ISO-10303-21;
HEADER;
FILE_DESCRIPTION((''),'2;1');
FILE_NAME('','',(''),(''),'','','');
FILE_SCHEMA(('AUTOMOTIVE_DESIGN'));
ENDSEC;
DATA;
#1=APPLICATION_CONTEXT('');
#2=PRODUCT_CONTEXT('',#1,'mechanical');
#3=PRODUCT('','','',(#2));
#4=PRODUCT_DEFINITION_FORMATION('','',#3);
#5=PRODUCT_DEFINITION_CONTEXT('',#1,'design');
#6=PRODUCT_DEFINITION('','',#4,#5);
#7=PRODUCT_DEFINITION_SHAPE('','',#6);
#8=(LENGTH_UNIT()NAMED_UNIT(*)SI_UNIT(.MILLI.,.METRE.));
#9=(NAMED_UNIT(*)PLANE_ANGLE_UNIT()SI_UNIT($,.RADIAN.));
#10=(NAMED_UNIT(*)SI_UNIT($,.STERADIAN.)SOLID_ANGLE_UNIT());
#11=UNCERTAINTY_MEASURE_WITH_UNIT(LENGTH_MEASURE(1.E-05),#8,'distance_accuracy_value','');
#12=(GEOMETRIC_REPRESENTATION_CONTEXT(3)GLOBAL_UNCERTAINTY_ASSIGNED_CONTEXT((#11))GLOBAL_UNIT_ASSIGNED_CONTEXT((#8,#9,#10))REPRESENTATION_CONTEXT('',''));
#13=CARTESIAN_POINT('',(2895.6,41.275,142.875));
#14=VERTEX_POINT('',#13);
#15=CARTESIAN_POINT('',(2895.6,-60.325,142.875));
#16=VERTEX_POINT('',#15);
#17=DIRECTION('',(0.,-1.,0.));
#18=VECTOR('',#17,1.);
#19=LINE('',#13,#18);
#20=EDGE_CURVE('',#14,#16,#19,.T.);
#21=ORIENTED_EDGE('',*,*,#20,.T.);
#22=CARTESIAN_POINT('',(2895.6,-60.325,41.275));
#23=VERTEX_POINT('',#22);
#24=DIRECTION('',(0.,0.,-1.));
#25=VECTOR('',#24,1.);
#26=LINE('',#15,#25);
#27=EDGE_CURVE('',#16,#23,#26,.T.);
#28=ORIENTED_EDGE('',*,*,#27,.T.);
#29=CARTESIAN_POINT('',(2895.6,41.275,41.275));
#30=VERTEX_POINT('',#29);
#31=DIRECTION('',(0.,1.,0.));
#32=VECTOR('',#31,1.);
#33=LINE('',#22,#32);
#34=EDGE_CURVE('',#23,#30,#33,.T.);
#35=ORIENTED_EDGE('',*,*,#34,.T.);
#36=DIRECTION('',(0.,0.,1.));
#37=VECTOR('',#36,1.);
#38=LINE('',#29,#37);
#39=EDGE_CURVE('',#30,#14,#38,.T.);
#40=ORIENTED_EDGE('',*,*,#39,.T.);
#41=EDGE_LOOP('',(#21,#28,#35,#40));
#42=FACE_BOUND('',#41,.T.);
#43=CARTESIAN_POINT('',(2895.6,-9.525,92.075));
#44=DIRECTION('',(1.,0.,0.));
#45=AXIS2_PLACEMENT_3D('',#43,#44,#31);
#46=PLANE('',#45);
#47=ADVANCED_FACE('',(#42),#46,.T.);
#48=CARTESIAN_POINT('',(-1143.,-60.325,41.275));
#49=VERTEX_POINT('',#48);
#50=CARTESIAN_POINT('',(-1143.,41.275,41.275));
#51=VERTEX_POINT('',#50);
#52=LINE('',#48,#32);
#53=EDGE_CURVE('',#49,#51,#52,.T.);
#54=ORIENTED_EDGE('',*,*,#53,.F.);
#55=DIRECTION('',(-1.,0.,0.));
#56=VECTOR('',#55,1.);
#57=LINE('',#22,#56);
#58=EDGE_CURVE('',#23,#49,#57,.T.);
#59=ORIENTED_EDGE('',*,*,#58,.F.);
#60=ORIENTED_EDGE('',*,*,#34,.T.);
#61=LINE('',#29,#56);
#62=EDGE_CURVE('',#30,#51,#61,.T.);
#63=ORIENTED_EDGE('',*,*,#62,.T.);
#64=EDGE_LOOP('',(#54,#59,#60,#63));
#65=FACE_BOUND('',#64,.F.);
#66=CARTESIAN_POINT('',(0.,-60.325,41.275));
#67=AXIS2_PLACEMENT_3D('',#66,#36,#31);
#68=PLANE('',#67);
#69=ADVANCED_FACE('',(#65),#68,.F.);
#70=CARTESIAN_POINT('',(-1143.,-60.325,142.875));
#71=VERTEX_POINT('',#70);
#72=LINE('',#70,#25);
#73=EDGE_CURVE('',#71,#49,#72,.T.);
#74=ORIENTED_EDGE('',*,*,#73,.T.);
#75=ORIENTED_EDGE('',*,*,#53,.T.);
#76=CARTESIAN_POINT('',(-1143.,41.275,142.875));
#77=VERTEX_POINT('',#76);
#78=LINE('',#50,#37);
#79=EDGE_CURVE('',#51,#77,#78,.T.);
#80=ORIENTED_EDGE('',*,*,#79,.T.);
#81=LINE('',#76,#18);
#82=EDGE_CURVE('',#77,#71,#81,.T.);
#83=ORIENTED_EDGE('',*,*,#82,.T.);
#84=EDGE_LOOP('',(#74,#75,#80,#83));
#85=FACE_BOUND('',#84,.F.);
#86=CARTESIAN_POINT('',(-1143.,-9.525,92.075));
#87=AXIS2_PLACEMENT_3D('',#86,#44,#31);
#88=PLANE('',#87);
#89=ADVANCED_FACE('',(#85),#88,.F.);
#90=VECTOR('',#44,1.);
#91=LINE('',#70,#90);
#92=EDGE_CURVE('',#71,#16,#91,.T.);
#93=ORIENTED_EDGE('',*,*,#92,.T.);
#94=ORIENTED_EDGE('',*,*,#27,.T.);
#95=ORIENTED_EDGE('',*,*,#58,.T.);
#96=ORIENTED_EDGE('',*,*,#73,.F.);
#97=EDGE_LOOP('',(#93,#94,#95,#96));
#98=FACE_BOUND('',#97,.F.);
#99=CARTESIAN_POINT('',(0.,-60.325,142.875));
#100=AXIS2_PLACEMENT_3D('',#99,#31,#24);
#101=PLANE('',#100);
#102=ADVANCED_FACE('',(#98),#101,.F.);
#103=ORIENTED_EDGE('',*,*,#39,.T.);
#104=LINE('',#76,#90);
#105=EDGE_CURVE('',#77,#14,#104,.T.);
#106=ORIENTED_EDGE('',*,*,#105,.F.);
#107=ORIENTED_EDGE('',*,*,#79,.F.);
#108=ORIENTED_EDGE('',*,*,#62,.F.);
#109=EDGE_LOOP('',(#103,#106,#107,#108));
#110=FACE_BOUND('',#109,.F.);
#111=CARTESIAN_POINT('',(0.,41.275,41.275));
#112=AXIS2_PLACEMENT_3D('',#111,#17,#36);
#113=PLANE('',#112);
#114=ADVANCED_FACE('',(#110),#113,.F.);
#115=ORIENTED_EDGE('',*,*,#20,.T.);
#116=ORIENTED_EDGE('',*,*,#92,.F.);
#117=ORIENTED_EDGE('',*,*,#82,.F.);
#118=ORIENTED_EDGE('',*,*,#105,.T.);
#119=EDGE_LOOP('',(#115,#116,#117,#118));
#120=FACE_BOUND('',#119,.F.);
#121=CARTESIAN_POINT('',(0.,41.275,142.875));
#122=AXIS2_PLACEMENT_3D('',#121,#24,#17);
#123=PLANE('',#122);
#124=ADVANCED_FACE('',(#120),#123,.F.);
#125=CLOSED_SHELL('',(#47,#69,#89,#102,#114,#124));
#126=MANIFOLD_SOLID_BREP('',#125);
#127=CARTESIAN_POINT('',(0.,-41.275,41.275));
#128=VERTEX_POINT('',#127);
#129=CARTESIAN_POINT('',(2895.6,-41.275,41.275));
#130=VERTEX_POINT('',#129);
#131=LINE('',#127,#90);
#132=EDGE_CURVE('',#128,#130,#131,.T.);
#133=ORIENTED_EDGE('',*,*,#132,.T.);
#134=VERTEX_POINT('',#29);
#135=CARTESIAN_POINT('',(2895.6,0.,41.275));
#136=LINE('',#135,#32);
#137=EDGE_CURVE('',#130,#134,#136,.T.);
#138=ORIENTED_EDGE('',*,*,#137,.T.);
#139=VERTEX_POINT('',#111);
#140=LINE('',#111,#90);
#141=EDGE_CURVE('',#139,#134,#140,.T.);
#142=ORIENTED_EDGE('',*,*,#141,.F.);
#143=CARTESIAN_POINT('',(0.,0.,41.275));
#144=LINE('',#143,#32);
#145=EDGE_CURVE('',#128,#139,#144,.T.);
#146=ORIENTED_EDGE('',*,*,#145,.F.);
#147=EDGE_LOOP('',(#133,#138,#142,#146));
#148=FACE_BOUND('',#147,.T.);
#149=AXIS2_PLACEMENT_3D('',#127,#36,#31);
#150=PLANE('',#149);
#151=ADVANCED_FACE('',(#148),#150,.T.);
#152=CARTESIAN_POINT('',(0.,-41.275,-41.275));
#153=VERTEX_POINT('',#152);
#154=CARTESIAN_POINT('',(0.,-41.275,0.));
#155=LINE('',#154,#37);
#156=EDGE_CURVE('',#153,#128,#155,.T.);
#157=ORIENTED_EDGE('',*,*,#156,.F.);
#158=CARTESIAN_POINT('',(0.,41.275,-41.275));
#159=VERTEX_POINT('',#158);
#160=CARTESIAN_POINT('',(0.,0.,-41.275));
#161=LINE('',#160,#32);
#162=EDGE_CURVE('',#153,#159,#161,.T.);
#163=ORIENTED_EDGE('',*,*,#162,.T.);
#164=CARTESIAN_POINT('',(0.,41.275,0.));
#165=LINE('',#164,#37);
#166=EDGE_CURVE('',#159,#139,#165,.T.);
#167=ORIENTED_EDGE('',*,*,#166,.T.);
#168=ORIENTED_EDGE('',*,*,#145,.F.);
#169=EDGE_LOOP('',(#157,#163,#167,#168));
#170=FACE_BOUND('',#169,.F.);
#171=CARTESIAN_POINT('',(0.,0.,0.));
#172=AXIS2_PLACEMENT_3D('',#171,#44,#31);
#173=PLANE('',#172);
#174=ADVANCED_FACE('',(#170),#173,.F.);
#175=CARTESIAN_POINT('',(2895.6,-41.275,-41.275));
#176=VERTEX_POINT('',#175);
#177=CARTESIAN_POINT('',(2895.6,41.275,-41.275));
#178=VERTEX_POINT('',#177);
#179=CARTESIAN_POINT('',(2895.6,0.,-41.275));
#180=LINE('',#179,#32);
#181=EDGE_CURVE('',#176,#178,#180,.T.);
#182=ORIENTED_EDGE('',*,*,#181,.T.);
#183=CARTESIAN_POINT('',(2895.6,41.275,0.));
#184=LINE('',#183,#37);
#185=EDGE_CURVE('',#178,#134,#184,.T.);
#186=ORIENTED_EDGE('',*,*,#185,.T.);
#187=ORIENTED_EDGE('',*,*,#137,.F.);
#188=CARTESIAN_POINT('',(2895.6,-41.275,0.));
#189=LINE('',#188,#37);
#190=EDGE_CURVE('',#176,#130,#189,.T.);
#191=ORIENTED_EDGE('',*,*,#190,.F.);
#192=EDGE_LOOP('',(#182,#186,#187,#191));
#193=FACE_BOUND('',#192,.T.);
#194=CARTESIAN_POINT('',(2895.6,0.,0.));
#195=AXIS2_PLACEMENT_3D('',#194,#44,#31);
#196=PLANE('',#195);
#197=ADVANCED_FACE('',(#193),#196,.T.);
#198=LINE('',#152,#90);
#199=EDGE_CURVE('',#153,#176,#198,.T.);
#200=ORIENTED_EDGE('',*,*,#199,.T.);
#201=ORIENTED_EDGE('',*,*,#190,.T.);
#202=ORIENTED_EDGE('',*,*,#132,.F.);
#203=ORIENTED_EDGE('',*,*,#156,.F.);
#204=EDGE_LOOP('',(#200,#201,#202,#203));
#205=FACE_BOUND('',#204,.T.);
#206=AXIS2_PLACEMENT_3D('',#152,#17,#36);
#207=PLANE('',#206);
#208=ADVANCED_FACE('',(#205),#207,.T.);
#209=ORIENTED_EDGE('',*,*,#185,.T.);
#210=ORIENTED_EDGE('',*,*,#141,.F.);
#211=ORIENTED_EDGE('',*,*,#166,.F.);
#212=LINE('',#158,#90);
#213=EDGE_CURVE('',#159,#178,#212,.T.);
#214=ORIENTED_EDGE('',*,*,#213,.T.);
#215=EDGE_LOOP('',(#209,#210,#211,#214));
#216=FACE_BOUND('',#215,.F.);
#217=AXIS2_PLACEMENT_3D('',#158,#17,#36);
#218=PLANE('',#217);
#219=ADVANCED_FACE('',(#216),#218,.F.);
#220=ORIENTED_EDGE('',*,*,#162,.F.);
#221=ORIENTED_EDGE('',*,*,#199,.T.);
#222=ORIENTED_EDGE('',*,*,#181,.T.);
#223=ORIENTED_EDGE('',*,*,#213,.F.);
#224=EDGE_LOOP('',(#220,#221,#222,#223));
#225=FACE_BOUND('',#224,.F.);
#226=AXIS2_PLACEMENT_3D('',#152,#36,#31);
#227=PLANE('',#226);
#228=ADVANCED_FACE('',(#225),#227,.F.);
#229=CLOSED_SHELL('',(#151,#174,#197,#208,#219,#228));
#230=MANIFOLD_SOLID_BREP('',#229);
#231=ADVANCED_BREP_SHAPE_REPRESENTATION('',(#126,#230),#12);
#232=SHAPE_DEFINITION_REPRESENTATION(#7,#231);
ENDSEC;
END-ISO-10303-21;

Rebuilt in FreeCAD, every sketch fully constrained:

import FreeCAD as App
import Part
import Sketcher

V = App.Vector
Q = App.Units.Quantity

doc = App.newDocument("Part")
body = doc.addObject("PartDesign::Body", "Body")

# Sketch on YZ plane
sketch1 = body.newObject("Sketcher::SketchObject", "Sketch")
sketch1.AttachmentSupport = (doc.getObject("YZ_Plane"), [""])
sketch1.MapMode = "FlatFace"
sketch1.addGeometry(Part.LineSegment(V(-41, 41, 0), V(-41, -41, 0)), False)
sketch1.addGeometry(Part.LineSegment(V(-41, -41, 0), V(41, -41, 0)), False)
sketch1.addGeometry(Part.LineSegment(V(41, -41, 0), V(41, 41, 0)), False)
sketch1.addGeometry(Part.LineSegment(V(41, 41, 0), V(-41, 41, 0)), False)
sketch1.addConstraint(Sketcher.Constraint("Coincident", 0, 2, 1, 1))
sketch1.addConstraint(Sketcher.Constraint("Coincident", 1, 2, 2, 1))
sketch1.addConstraint(Sketcher.Constraint("Coincident", 2, 2, 3, 1))
sketch1.addConstraint(Sketcher.Constraint("Coincident", 3, 2, 0, 1))
sketch1.addConstraint(Sketcher.Constraint("Vertical", 0))
sketch1.addConstraint(Sketcher.Constraint("Horizontal", 1))
sketch1.addConstraint(Sketcher.Constraint("Vertical", 2))
sketch1.addConstraint(Sketcher.Constraint("Horizontal", 3))
sketch1.addConstraint(Sketcher.Constraint("Symmetric", 0, 2, 2, 2, -1, 1))
sketch1.addConstraint(Sketcher.Constraint("Equal", 3, 0))
sketch1.addConstraint(Sketcher.Constraint("DistanceX", 1, 1, 1, 2, Q("3.25 in")))
pad1 = body.newObject("PartDesign::Pad", "Pad")
pad1.Profile = sketch1
pad1.Length = Q("114 in")
body2 = doc.addObject("PartDesign::Body", "Body001")

# Sketch on YZ plane
sketch2 = body2.newObject("Sketcher::SketchObject", "Sketch001")
sketch2.AttachmentSupport = (doc.getObject("YZ_Plane001"), [""])
sketch2.MapMode = "FlatFace"
sketch2.addGeometry(Part.LineSegment(V(41, 41, 0), V(41, 143, 0)), False)
sketch2.addGeometry(Part.LineSegment(V(41, 143, 0), V(-60, 143, 0)), False)
sketch2.addGeometry(Part.LineSegment(V(-60, 143, 0), V(-60, 41, 0)), False)
sketch2.addGeometry(Part.LineSegment(V(-60, 41, 0), V(41, 41, 0)), False)
sketch2.addConstraint(Sketcher.Constraint("Coincident", 0, 2, 1, 1))
sketch2.addConstraint(Sketcher.Constraint("Coincident", 1, 2, 2, 1))
sketch2.addConstraint(Sketcher.Constraint("Coincident", 2, 2, 3, 1))
sketch2.addConstraint(Sketcher.Constraint("Coincident", 3, 2, 0, 1))
sketch2.addConstraint(Sketcher.Constraint("Vertical", 0))
sketch2.addConstraint(Sketcher.Constraint("Horizontal", 1))
sketch2.addConstraint(Sketcher.Constraint("Vertical", 2))
sketch2.addConstraint(Sketcher.Constraint("Horizontal", 3))
sketch2.addConstraint(Sketcher.Constraint("Equal", 3, 0))
sketch2.addConstraint(Sketcher.Constraint("DistanceX", 1, 2, 1, 1, Q("4 in")))
sketch2.addConstraint(Sketcher.Constraint("DistanceX", -1, 1, 0, 2, Q("1.625 in")))
sketch2.addConstraint(Sketcher.Constraint("DistanceY", -1, 1, 0, 2, Q("5.625 in")))
pad2 = body2.newObject("PartDesign::Pad", "Pad001")
pad2.Profile = sketch2
pad2.Type = "TwoLengths"
pad2.Length = Q("45 in")
pad2.Length2 = Q("114 in")
pad2.Reversed = True

doc.recompute()
